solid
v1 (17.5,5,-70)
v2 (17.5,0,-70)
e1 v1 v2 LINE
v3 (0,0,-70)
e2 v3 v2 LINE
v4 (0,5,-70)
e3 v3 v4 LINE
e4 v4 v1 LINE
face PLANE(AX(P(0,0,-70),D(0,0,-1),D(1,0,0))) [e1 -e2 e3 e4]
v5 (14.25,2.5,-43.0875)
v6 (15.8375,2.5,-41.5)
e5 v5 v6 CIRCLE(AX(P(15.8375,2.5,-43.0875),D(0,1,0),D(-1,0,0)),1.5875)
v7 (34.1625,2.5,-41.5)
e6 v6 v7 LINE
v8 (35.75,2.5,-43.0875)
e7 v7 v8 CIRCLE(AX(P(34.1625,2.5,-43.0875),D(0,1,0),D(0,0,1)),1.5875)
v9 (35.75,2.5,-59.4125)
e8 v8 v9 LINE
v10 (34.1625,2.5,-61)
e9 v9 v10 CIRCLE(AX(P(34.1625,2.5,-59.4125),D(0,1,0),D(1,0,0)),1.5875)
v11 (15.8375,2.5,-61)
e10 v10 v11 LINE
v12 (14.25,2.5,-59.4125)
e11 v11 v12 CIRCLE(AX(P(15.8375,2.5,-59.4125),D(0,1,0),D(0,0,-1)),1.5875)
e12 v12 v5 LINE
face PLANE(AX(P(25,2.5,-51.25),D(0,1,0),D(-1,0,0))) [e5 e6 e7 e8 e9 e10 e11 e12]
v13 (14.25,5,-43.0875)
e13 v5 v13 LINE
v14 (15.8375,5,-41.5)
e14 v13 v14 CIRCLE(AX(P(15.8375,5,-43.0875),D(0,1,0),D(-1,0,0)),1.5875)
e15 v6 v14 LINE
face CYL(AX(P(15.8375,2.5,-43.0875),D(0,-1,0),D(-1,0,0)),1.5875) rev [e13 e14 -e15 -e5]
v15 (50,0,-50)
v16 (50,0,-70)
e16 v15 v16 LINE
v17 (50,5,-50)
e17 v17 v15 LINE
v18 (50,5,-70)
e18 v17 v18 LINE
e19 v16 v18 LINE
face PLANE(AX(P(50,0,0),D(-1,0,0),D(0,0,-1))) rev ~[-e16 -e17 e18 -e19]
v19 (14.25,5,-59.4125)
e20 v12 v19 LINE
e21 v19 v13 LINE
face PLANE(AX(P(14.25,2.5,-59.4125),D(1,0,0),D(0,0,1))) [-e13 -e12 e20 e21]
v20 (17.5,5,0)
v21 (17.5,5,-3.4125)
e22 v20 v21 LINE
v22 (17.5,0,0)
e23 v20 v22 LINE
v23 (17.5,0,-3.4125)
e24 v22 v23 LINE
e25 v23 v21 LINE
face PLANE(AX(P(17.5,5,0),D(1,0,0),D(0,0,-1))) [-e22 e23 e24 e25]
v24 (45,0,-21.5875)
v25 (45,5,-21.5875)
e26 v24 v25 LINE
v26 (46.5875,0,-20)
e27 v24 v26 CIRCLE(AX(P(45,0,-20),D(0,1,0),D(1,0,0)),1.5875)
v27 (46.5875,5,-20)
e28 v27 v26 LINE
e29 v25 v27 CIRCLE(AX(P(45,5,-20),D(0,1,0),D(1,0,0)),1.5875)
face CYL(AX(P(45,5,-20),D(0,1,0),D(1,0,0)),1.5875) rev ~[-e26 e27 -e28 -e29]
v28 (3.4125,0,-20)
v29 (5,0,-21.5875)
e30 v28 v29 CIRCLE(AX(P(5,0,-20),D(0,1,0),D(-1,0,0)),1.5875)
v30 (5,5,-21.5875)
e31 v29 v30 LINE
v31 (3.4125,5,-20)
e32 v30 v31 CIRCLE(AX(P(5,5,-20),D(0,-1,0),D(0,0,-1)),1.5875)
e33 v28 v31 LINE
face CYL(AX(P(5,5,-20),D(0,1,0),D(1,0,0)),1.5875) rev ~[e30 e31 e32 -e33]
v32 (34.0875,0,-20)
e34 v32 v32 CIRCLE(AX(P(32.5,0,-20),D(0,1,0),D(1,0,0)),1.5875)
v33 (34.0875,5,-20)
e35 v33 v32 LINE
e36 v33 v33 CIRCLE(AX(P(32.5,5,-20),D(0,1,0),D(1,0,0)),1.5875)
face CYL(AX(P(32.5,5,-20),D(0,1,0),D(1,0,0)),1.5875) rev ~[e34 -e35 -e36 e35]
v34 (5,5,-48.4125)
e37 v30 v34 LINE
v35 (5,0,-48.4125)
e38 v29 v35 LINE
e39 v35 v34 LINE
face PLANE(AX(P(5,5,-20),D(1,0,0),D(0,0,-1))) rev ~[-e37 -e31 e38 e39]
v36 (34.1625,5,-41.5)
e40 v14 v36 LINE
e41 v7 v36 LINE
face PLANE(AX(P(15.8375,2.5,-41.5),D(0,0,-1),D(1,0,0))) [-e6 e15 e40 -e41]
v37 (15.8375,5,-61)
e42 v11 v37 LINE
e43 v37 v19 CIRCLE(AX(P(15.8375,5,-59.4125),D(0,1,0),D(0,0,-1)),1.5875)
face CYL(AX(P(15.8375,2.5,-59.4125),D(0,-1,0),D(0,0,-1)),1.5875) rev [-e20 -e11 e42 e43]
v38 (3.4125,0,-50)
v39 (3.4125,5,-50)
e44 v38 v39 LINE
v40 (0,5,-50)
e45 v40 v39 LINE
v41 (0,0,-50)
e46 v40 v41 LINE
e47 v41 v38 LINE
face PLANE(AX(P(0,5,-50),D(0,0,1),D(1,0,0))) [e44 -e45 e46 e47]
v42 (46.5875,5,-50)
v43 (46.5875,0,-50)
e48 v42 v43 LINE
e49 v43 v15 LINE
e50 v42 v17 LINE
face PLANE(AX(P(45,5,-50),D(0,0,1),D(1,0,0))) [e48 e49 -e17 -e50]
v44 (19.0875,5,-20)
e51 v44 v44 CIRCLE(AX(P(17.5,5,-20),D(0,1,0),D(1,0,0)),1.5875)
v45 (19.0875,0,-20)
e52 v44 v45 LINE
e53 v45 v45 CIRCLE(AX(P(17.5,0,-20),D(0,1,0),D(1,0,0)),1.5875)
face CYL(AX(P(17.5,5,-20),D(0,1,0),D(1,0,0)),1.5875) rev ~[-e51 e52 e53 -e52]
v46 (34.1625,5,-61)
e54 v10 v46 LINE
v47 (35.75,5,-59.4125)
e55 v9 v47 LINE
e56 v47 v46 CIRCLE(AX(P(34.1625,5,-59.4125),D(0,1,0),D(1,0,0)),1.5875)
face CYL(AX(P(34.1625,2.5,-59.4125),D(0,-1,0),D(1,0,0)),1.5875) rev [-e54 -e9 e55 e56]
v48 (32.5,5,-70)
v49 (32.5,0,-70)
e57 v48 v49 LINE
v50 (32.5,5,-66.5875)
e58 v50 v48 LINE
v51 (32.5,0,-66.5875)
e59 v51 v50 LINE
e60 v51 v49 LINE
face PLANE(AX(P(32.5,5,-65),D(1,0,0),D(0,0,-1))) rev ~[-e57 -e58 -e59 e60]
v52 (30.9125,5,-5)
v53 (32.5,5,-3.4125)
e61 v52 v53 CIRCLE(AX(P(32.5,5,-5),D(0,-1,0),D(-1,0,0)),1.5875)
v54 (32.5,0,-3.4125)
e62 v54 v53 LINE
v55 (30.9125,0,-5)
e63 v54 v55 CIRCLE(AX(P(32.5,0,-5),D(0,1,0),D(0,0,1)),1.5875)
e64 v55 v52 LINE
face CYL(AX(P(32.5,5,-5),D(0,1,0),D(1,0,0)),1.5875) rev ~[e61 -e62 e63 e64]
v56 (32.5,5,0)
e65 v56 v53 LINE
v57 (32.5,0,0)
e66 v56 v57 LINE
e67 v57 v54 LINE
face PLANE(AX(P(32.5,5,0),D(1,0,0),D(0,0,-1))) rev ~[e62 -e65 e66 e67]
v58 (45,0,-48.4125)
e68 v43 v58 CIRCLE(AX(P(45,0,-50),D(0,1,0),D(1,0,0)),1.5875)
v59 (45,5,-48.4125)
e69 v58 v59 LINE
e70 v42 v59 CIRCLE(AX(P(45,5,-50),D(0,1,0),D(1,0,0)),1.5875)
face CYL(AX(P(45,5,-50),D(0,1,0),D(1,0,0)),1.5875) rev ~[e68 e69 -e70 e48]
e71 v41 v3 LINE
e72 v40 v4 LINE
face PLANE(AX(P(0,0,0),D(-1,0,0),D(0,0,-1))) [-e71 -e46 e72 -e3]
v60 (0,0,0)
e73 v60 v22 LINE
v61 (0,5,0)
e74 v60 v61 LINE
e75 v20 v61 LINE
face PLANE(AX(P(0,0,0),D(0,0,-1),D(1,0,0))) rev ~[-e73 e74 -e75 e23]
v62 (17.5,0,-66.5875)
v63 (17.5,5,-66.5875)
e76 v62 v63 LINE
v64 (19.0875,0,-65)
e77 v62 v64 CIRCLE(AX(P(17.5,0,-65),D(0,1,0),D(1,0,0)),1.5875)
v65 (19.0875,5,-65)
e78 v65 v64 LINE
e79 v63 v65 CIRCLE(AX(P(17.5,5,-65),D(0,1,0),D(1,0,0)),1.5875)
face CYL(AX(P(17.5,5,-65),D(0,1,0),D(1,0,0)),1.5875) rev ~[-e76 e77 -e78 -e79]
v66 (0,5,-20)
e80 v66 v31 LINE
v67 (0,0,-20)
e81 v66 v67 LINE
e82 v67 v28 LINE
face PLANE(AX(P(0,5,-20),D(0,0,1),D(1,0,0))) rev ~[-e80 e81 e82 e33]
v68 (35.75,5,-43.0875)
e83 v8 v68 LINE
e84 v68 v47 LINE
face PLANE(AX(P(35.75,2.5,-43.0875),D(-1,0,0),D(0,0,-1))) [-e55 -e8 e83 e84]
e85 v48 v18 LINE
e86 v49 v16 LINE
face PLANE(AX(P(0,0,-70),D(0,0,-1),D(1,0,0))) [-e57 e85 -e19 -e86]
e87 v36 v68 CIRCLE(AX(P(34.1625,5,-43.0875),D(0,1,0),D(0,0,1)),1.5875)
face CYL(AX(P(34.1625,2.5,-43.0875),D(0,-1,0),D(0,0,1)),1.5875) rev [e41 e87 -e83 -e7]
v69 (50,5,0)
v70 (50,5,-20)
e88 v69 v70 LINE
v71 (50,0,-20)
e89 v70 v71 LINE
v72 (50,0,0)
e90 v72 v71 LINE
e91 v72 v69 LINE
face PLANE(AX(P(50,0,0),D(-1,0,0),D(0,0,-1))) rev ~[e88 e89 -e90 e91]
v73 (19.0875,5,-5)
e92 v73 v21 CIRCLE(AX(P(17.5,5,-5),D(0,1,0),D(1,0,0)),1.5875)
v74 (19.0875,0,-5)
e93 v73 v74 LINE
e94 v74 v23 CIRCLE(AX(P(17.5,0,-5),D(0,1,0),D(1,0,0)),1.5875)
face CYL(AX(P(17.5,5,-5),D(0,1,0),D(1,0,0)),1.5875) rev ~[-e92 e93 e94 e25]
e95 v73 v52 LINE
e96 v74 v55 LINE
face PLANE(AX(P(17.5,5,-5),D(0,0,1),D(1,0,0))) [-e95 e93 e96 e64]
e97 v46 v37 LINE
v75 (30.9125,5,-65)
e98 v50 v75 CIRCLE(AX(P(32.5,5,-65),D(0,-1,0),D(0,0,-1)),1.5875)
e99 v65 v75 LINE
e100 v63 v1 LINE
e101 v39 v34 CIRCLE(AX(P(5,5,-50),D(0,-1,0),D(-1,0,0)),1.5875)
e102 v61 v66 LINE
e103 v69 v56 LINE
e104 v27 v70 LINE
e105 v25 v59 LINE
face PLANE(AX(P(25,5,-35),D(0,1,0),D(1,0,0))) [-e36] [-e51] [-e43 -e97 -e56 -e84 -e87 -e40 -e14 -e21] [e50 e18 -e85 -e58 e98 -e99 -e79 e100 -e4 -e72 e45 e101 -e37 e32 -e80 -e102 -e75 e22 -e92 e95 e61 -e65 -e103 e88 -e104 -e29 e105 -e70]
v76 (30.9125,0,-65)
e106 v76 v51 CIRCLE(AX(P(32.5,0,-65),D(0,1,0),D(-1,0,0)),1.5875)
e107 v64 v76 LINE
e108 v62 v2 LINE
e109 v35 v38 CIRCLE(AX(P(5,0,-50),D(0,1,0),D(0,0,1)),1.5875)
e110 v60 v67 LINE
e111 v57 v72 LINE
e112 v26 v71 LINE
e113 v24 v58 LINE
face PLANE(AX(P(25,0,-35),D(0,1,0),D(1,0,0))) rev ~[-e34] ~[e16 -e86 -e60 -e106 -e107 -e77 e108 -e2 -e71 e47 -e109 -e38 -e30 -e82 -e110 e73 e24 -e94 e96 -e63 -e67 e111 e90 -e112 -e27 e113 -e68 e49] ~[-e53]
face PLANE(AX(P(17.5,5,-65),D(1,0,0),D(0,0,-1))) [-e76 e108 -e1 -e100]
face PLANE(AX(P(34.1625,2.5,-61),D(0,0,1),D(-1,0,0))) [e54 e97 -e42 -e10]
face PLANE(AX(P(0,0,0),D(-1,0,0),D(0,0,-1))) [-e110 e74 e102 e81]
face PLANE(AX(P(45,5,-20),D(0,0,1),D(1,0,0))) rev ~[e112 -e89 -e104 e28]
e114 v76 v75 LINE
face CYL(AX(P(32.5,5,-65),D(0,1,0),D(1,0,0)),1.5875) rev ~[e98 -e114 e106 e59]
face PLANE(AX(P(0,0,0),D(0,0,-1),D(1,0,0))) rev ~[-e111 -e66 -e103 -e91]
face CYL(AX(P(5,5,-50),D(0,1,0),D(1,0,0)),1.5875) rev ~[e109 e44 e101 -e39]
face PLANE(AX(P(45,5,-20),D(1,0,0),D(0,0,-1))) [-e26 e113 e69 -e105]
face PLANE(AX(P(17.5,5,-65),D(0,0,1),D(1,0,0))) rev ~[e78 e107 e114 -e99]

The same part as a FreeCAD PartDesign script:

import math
import FreeCAD as App
import Part
import Sketcher
from FreeCAD import Vector
Q = App.Units.Quantity


def add_polygon(sketch, points):
    """Adds a closed chain of lines whose ends are joined by coincident constraints."""
    first, n = sketch.GeometryCount, len(points)
    for a, b in zip(points, points[1:] + points[:1]):
        sketch.addGeometry(Part.LineSegment(App.Vector(*a, 0), App.Vector(*b, 0)), False)
    for i in range(n):
        sketch.addConstraint(Sketcher.Constraint("Coincident", first + i, 2, first + (i + 1) % n, 1))

doc = App.newDocument("Part")
body = doc.addObject("PartDesign::Body", "Body")

# Sketch on XZ plane
sketch1 = body.newObject("Sketcher::SketchObject", "Sketch")
sketch1.AttachmentSupport = (doc.getObject("XZ_Plane"), [""])
sketch1.MapMode = "FlatFace"
add_polygon(sketch1, [(0, -70), (0, 0), (50, 0), (50, -70)])  # lines 0-3
sketch1.addConstraint(Sketcher.Constraint("Vertical", 0))
sketch1.addConstraint(Sketcher.Constraint("Horizontal", 1))
sketch1.addConstraint(Sketcher.Constraint("Vertical", 2))
sketch1.addConstraint(Sketcher.Constraint("Horizontal", 3))
sketch1.addConstraint(Sketcher.Constraint("Coincident", 0, 2, -1, 1))
sketch1.addConstraint(Sketcher.Constraint("DistanceX", 1, 1, 1, 2, Q("50 mm")))
sketch1.addConstraint(Sketcher.Constraint("DistanceY", 0, 1, 0, 2, Q("70 mm")))
pad1 = body.newObject("PartDesign::Pad", "Pad")
pad1.Profile = sketch1
pad1.Length = 5
pad1.Reversed = True

# Sketch on XZ plane
sketch2 = body.newObject("Sketcher::SketchObject", "Sketch001")
sketch2.AttachmentSupport = (doc.getObject("XZ_Plane"), [""])
sketch2.MapMode = "FlatFace"
sketch2.AttachmentOffset = App.Placement(Vector(0, 0, -2.5), App.Rotation())
sketch2.addGeometry(Part.LineSegment(Vector(15.8, -61, 0), Vector(34.2, -61, 0)), False)
sketch2.addGeometry(Part.ArcOfCircle(Part.Circle(Vector(34.2, -59.4, 0), Vector(0, 0, 1), 1.6), math.radians(-90), math.radians(0)), False)
sketch2.addGeometry(Part.LineSegment(Vector(35.8, -59.4, 0), Vector(35.8, -43.1, 0)), False)
sketch2.addGeometry(Part.ArcOfCircle(Part.Circle(Vector(34.2, -43.1, 0), Vector(0, 0, 1), 1.6), math.radians(0), math.radians(90)), False)
sketch2.addGeometry(Part.LineSegment(Vector(34.2, -41.5, 0), Vector(15.8, -41.5, 0)), False)
sketch2.addGeometry(Part.ArcOfCircle(Part.Circle(Vector(15.8, -43.1, 0), Vector(0, 0, 1), 1.6), math.radians(90), math.radians(180)), False)
sketch2.addGeometry(Part.LineSegment(Vector(14.2, -43.1, 0), Vector(14.2, -59.4, 0)), False)
sketch2.addGeometry(Part.ArcOfCircle(Part.Circle(Vector(15.8, -59.4, 0), Vector(0, 0, 1), 1.6), math.radians(180), math.radians(270)), False)
sketch2.addConstraint(Sketcher.Constraint("Tangent", 0, 2, 1, 1))
sketch2.addConstraint(Sketcher.Constraint("Tangent", 1, 2, 2, 1))
sketch2.addConstraint(Sketcher.Constraint("Tangent", 2, 2, 3, 1))
sketch2.addConstraint(Sketcher.Constraint("Tangent", 3, 2, 4, 1))
sketch2.addConstraint(Sketcher.Constraint("Tangent", 4, 2, 5, 1))
sketch2.addConstraint(Sketcher.Constraint("Tangent", 5, 2, 6, 1))
sketch2.addConstraint(Sketcher.Constraint("Tangent", 6, 2, 7, 1))
sketch2.addConstraint(Sketcher.Constraint("Tangent", 7, 2, 0, 1))
sketch2.addConstraint(Sketcher.Constraint("Horizontal", 0))
sketch2.addConstraint(Sketcher.Constraint("Vertical", 2))
sketch2.addConstraint(Sketcher.Constraint("Horizontal", 4))
sketch2.addConstraint(Sketcher.Constraint("Vertical", 6))
sketch2.addConstraint(Sketcher.Constraint("Equal", 1, 3))
sketch2.addConstraint(Sketcher.Constraint("Equal", 3, 5))
sketch2.addConstraint(Sketcher.Constraint("Equal", 5, 7))
sketch2.addConstraint(Sketcher.Constraint("DistanceY", 0, 2, -1, 1, Q("61 mm")))
sketch2.addConstraint(Sketcher.Constraint("DistanceY", 3, 2, -1, 1, Q("41.5 mm")))
sketch2.addConstraint(Sketcher.Constraint("Radius", 1, Q("1.5875 mm")))
sketch2.addConstraint(Sketcher.Constraint("DistanceX", 0, 1, 0, 2, Q("18.325 mm")))
sketch2.addConstraint(Sketcher.Constraint("DistanceX", -1, 1, 1, 2, Q("35.75 mm")))
pocket1 = body.newObject("PartDesign::Pocket", "Pocket")
pocket1.Profile = sketch2
pocket1.Length = 2.5

# Sketch on XZ plane
sketch3 = body.newObject("Sketcher::SketchObject", "Sketch002")
sketch3.AttachmentSupport = (doc.getObject("XZ_Plane"), [""])
sketch3.MapMode = "FlatFace"
sketch3.AttachmentOffset = App.Placement(Vector(0, 0, -5), App.Rotation())
add_polygon(sketch3, [(0, -50), (0, -20), (5, -20), (5, -50)])  # lines 0-3
add_polygon(sketch3, [(18, -70), (18, -65), (32, -65), (32, -70)])  # lines 4-7
add_polygon(sketch3, [(45, -50), (45, -20), (50, -20), (50, -50)])  # lines 8-11
add_polygon(sketch3, [(18, -5), (18, 0), (32, 0), (32, -5)])  # lines 12-15
sketch3.addConstraint(Sketcher.Constraint("Vertical", 0))
sketch3.addConstraint(Sketcher.Constraint("Horizontal", 1))
sketch3.addConstraint(Sketcher.Constraint("Vertical", 2))
sketch3.addConstraint(Sketcher.Constraint("Horizontal", 3))
sketch3.addConstraint(Sketcher.Constraint("Vertical", 4))
sketch3.addConstraint(Sketcher.Constraint("Horizontal", 5))
sketch3.addConstraint(Sketcher.Constraint("Vertical", 6))
sketch3.addConstraint(Sketcher.Constraint("Horizontal", 7))
sketch3.addConstraint(Sketcher.Constraint("Vertical", 8))
sketch3.addConstraint(Sketcher.Constraint("Horizontal", 9))
sketch3.addConstraint(Sketcher.Constraint("Vertical", 10))
sketch3.addConstraint(Sketcher.Constraint("Horizontal", 11))
sketch3.addConstraint(Sketcher.Constraint("Vertical", 12))
sketch3.addConstraint(Sketcher.Constraint("Horizontal", 13))
sketch3.addConstraint(Sketcher.Constraint("Vertical", 14))
sketch3.addConstraint(Sketcher.Constraint("Horizontal", 15))
sketch3.addConstraint(Sketcher.Constraint("PointOnObject", 0, 2, -2))
sketch3.addConstraint(Sketcher.Constraint("PointOnObject", 12, 2, -1))
sketch3.addConstraint(Sketcher.Constraint("Horizontal", 1, 2, 8, 2))
sketch3.addConstraint(Sketcher.Constraint("Horizontal", 3, 2, 10, 2))
sketch3.addConstraint(Sketcher.Constraint("Vertical", 7, 2, 12, 2))
sketch3.addConstraint(Sketcher.Constraint("Vertical", 6, 2, 13, 2))
sketch3.addConstraint(Sketcher.Constraint("Equal", 3, 9))
sketch3.addConstraint(Sketcher.Constraint("Equal", 11, 4))
sketch3.addConstraint(Sketcher.Constraint("Equal", 6, 12))
sketch3.addConstraint(Sketcher.Constraint("DistanceX", 1, 1, 1, 2, Q("5 mm")))
sketch3.addConstraint(Sketcher.Constraint("DistanceX", 5, 1, 5, 2, Q("15 mm")))
sketch3.addConstraint(Sketcher.Constraint("DistanceY", 0, 1, 0, 2, Q("30 mm")))
sketch3.addConstraint(Sketcher.Constraint("DistanceY", 0, 2, -1, 1, Q("20 mm")))
sketch3.addConstraint(Sketcher.Constraint("DistanceY", 4, 2, -1, 1, Q("65 mm")))
sketch3.addConstraint(Sketcher.Constraint("DistanceX", -1, 1, 8, 2, Q("45 mm")))
sketch3.addConstraint(Sketcher.Constraint("DistanceX", -1, 1, 4, 2, Q("17.5 mm")))
pocket2 = body.newObject("PartDesign::Pocket", "Pocket001")
pocket2.Profile = sketch3
pocket2.Type = "ThroughAll"
pocket2.Midplane = True

# Sketch on XZ plane
sketch4 = body.newObject("Sketcher::SketchObject", "Sketch003")
sketch4.AttachmentSupport = (doc.getObject("XZ_Plane"), [""])
sketch4.MapMode = "FlatFace"
sketch4.AttachmentOffset = App.Placement(Vector(0, 0, -5), App.Rotation())
sketch4.addGeometry(Part.Circle(Vector(5, -20, 0), Vector(0, 0, 1), 1.6), False)
sketch4.addGeometry(Part.Circle(Vector(5, -50, 0), Vector(0, 0, 1), 1.6), False)
sketch4.addGeometry(Part.Circle(Vector(17.5, -65, 0), Vector(0, 0, 1), 1.6), False)
sketch4.addGeometry(Part.Circle(Vector(32.5, -65, 0), Vector(0, 0, 1), 1.6), False)
sketch4.addGeometry(Part.Circle(Vector(45, -50, 0), Vector(0, 0, 1), 1.6), False)
sketch4.addGeometry(Part.Circle(Vector(45, -20, 0), Vector(0, 0, 1), 1.6), False)
sketch4.addGeometry(Part.Circle(Vector(32.5, -5, 0), Vector(0, 0, 1), 1.6), False)
sketch4.addGeometry(Part.Circle(Vector(17.5, -5, 0), Vector(0, 0, 1), 1.6), False)
sketch4.addGeometry(Part.Circle(Vector(17.5, -20, 0), Vector(0, 0, 1), 1.6), False)
sketch4.addGeometry(Part.Circle(Vector(32.5, -20, 0), Vector(0, 0, 1), 1.6), False)
sketch4.addConstraint(Sketcher.Constraint("Equal", 0, 1))
sketch4.addConstraint(Sketcher.Constraint("Equal", 1, 2))
sketch4.addConstraint(Sketcher.Constraint("Equal", 2, 3))
sketch4.addConstraint(Sketcher.Constraint("Equal", 3, 4))
sketch4.addConstraint(Sketcher.Constraint("Equal", 4, 5))
sketch4.addConstraint(Sketcher.Constraint("Equal", 5, 6))
sketch4.addConstraint(Sketcher.Constraint("Equal", 6, 7))
sketch4.addConstraint(Sketcher.Constraint("Equal", 7, 8))
sketch4.addConstraint(Sketcher.Constraint("Equal", 8, 9))
sketch4.addConstraint(Sketcher.Constraint("Horizontal", 2, 3, 3, 3))
sketch4.addConstraint(Sketcher.Constraint("Horizontal", 1, 3, 4, 3))
sketch4.addConstraint(Sketcher.Constraint("Horizontal", 0, 3, 5, 3))
sketch4.addConstraint(Sketcher.Constraint("Horizontal", 6, 3, 7, 3))
sketch4.addConstraint(Sketcher.Constraint("Horizontal", 5, 3, 8, 3))
sketch4.addConstraint(Sketcher.Constraint("Horizontal", 8, 3, 9, 3))
sketch4.addConstraint(Sketcher.Constraint("Vertical", 0, 3, 1, 3))
sketch4.addConstraint(Sketcher.Constraint("Vertical", 4, 3, 5, 3))
sketch4.addConstraint(Sketcher.Constraint("Vertical", 3, 3, 6, 3))
sketch4.addConstraint(Sketcher.Constraint("Vertical", 2, 3, 7, 3))
sketch4.addConstraint(Sketcher.Constraint("Vertical", 7, 3, 8, 3))
sketch4.addConstraint(Sketcher.Constraint("Vertical", 6, 3, 9, 3))
sketch4.addConstraint(Sketcher.Constraint("Diameter", 0, Q("3.175 mm")))
sketch4.addConstraint(Sketcher.Constraint("DistanceX", -1, 1, 0, 3, Q("5 mm")))
sketch4.addConstraint(Sketcher.Constraint("DistanceY", 0, 3, -1, 1, Q("20 mm")))
sketch4.addConstraint(Sketcher.Constraint("DistanceY", 1, 3, -1, 1, Q("50 mm")))
sketch4.addConstraint(Sketcher.Constraint("DistanceY", 2, 3, -1, 1, Q("65 mm")))
sketch4.addConstraint(Sketcher.Constraint("DistanceX", -1, 1, 4, 3, Q("45 mm")))
sketch4.addConstraint(Sketcher.Constraint("DistanceY", 6, 3, -1, 1, Q("5 mm")))
sketch4.addConstraint(Sketcher.Constraint("DistanceX", 2, 3, 3, 3, Q("15 mm")))
sketch4.addConstraint(Sketcher.Constraint("DistanceX", -1, 1, 2, 3, Q("17.5 mm")))
pocket3 = body.newObject("PartDesign::Pocket", "Pocket002")
pocket3.Profile = sketch4
pocket3.Type = "ThroughAll"
pocket3.Reversed = True

doc.recompute()
